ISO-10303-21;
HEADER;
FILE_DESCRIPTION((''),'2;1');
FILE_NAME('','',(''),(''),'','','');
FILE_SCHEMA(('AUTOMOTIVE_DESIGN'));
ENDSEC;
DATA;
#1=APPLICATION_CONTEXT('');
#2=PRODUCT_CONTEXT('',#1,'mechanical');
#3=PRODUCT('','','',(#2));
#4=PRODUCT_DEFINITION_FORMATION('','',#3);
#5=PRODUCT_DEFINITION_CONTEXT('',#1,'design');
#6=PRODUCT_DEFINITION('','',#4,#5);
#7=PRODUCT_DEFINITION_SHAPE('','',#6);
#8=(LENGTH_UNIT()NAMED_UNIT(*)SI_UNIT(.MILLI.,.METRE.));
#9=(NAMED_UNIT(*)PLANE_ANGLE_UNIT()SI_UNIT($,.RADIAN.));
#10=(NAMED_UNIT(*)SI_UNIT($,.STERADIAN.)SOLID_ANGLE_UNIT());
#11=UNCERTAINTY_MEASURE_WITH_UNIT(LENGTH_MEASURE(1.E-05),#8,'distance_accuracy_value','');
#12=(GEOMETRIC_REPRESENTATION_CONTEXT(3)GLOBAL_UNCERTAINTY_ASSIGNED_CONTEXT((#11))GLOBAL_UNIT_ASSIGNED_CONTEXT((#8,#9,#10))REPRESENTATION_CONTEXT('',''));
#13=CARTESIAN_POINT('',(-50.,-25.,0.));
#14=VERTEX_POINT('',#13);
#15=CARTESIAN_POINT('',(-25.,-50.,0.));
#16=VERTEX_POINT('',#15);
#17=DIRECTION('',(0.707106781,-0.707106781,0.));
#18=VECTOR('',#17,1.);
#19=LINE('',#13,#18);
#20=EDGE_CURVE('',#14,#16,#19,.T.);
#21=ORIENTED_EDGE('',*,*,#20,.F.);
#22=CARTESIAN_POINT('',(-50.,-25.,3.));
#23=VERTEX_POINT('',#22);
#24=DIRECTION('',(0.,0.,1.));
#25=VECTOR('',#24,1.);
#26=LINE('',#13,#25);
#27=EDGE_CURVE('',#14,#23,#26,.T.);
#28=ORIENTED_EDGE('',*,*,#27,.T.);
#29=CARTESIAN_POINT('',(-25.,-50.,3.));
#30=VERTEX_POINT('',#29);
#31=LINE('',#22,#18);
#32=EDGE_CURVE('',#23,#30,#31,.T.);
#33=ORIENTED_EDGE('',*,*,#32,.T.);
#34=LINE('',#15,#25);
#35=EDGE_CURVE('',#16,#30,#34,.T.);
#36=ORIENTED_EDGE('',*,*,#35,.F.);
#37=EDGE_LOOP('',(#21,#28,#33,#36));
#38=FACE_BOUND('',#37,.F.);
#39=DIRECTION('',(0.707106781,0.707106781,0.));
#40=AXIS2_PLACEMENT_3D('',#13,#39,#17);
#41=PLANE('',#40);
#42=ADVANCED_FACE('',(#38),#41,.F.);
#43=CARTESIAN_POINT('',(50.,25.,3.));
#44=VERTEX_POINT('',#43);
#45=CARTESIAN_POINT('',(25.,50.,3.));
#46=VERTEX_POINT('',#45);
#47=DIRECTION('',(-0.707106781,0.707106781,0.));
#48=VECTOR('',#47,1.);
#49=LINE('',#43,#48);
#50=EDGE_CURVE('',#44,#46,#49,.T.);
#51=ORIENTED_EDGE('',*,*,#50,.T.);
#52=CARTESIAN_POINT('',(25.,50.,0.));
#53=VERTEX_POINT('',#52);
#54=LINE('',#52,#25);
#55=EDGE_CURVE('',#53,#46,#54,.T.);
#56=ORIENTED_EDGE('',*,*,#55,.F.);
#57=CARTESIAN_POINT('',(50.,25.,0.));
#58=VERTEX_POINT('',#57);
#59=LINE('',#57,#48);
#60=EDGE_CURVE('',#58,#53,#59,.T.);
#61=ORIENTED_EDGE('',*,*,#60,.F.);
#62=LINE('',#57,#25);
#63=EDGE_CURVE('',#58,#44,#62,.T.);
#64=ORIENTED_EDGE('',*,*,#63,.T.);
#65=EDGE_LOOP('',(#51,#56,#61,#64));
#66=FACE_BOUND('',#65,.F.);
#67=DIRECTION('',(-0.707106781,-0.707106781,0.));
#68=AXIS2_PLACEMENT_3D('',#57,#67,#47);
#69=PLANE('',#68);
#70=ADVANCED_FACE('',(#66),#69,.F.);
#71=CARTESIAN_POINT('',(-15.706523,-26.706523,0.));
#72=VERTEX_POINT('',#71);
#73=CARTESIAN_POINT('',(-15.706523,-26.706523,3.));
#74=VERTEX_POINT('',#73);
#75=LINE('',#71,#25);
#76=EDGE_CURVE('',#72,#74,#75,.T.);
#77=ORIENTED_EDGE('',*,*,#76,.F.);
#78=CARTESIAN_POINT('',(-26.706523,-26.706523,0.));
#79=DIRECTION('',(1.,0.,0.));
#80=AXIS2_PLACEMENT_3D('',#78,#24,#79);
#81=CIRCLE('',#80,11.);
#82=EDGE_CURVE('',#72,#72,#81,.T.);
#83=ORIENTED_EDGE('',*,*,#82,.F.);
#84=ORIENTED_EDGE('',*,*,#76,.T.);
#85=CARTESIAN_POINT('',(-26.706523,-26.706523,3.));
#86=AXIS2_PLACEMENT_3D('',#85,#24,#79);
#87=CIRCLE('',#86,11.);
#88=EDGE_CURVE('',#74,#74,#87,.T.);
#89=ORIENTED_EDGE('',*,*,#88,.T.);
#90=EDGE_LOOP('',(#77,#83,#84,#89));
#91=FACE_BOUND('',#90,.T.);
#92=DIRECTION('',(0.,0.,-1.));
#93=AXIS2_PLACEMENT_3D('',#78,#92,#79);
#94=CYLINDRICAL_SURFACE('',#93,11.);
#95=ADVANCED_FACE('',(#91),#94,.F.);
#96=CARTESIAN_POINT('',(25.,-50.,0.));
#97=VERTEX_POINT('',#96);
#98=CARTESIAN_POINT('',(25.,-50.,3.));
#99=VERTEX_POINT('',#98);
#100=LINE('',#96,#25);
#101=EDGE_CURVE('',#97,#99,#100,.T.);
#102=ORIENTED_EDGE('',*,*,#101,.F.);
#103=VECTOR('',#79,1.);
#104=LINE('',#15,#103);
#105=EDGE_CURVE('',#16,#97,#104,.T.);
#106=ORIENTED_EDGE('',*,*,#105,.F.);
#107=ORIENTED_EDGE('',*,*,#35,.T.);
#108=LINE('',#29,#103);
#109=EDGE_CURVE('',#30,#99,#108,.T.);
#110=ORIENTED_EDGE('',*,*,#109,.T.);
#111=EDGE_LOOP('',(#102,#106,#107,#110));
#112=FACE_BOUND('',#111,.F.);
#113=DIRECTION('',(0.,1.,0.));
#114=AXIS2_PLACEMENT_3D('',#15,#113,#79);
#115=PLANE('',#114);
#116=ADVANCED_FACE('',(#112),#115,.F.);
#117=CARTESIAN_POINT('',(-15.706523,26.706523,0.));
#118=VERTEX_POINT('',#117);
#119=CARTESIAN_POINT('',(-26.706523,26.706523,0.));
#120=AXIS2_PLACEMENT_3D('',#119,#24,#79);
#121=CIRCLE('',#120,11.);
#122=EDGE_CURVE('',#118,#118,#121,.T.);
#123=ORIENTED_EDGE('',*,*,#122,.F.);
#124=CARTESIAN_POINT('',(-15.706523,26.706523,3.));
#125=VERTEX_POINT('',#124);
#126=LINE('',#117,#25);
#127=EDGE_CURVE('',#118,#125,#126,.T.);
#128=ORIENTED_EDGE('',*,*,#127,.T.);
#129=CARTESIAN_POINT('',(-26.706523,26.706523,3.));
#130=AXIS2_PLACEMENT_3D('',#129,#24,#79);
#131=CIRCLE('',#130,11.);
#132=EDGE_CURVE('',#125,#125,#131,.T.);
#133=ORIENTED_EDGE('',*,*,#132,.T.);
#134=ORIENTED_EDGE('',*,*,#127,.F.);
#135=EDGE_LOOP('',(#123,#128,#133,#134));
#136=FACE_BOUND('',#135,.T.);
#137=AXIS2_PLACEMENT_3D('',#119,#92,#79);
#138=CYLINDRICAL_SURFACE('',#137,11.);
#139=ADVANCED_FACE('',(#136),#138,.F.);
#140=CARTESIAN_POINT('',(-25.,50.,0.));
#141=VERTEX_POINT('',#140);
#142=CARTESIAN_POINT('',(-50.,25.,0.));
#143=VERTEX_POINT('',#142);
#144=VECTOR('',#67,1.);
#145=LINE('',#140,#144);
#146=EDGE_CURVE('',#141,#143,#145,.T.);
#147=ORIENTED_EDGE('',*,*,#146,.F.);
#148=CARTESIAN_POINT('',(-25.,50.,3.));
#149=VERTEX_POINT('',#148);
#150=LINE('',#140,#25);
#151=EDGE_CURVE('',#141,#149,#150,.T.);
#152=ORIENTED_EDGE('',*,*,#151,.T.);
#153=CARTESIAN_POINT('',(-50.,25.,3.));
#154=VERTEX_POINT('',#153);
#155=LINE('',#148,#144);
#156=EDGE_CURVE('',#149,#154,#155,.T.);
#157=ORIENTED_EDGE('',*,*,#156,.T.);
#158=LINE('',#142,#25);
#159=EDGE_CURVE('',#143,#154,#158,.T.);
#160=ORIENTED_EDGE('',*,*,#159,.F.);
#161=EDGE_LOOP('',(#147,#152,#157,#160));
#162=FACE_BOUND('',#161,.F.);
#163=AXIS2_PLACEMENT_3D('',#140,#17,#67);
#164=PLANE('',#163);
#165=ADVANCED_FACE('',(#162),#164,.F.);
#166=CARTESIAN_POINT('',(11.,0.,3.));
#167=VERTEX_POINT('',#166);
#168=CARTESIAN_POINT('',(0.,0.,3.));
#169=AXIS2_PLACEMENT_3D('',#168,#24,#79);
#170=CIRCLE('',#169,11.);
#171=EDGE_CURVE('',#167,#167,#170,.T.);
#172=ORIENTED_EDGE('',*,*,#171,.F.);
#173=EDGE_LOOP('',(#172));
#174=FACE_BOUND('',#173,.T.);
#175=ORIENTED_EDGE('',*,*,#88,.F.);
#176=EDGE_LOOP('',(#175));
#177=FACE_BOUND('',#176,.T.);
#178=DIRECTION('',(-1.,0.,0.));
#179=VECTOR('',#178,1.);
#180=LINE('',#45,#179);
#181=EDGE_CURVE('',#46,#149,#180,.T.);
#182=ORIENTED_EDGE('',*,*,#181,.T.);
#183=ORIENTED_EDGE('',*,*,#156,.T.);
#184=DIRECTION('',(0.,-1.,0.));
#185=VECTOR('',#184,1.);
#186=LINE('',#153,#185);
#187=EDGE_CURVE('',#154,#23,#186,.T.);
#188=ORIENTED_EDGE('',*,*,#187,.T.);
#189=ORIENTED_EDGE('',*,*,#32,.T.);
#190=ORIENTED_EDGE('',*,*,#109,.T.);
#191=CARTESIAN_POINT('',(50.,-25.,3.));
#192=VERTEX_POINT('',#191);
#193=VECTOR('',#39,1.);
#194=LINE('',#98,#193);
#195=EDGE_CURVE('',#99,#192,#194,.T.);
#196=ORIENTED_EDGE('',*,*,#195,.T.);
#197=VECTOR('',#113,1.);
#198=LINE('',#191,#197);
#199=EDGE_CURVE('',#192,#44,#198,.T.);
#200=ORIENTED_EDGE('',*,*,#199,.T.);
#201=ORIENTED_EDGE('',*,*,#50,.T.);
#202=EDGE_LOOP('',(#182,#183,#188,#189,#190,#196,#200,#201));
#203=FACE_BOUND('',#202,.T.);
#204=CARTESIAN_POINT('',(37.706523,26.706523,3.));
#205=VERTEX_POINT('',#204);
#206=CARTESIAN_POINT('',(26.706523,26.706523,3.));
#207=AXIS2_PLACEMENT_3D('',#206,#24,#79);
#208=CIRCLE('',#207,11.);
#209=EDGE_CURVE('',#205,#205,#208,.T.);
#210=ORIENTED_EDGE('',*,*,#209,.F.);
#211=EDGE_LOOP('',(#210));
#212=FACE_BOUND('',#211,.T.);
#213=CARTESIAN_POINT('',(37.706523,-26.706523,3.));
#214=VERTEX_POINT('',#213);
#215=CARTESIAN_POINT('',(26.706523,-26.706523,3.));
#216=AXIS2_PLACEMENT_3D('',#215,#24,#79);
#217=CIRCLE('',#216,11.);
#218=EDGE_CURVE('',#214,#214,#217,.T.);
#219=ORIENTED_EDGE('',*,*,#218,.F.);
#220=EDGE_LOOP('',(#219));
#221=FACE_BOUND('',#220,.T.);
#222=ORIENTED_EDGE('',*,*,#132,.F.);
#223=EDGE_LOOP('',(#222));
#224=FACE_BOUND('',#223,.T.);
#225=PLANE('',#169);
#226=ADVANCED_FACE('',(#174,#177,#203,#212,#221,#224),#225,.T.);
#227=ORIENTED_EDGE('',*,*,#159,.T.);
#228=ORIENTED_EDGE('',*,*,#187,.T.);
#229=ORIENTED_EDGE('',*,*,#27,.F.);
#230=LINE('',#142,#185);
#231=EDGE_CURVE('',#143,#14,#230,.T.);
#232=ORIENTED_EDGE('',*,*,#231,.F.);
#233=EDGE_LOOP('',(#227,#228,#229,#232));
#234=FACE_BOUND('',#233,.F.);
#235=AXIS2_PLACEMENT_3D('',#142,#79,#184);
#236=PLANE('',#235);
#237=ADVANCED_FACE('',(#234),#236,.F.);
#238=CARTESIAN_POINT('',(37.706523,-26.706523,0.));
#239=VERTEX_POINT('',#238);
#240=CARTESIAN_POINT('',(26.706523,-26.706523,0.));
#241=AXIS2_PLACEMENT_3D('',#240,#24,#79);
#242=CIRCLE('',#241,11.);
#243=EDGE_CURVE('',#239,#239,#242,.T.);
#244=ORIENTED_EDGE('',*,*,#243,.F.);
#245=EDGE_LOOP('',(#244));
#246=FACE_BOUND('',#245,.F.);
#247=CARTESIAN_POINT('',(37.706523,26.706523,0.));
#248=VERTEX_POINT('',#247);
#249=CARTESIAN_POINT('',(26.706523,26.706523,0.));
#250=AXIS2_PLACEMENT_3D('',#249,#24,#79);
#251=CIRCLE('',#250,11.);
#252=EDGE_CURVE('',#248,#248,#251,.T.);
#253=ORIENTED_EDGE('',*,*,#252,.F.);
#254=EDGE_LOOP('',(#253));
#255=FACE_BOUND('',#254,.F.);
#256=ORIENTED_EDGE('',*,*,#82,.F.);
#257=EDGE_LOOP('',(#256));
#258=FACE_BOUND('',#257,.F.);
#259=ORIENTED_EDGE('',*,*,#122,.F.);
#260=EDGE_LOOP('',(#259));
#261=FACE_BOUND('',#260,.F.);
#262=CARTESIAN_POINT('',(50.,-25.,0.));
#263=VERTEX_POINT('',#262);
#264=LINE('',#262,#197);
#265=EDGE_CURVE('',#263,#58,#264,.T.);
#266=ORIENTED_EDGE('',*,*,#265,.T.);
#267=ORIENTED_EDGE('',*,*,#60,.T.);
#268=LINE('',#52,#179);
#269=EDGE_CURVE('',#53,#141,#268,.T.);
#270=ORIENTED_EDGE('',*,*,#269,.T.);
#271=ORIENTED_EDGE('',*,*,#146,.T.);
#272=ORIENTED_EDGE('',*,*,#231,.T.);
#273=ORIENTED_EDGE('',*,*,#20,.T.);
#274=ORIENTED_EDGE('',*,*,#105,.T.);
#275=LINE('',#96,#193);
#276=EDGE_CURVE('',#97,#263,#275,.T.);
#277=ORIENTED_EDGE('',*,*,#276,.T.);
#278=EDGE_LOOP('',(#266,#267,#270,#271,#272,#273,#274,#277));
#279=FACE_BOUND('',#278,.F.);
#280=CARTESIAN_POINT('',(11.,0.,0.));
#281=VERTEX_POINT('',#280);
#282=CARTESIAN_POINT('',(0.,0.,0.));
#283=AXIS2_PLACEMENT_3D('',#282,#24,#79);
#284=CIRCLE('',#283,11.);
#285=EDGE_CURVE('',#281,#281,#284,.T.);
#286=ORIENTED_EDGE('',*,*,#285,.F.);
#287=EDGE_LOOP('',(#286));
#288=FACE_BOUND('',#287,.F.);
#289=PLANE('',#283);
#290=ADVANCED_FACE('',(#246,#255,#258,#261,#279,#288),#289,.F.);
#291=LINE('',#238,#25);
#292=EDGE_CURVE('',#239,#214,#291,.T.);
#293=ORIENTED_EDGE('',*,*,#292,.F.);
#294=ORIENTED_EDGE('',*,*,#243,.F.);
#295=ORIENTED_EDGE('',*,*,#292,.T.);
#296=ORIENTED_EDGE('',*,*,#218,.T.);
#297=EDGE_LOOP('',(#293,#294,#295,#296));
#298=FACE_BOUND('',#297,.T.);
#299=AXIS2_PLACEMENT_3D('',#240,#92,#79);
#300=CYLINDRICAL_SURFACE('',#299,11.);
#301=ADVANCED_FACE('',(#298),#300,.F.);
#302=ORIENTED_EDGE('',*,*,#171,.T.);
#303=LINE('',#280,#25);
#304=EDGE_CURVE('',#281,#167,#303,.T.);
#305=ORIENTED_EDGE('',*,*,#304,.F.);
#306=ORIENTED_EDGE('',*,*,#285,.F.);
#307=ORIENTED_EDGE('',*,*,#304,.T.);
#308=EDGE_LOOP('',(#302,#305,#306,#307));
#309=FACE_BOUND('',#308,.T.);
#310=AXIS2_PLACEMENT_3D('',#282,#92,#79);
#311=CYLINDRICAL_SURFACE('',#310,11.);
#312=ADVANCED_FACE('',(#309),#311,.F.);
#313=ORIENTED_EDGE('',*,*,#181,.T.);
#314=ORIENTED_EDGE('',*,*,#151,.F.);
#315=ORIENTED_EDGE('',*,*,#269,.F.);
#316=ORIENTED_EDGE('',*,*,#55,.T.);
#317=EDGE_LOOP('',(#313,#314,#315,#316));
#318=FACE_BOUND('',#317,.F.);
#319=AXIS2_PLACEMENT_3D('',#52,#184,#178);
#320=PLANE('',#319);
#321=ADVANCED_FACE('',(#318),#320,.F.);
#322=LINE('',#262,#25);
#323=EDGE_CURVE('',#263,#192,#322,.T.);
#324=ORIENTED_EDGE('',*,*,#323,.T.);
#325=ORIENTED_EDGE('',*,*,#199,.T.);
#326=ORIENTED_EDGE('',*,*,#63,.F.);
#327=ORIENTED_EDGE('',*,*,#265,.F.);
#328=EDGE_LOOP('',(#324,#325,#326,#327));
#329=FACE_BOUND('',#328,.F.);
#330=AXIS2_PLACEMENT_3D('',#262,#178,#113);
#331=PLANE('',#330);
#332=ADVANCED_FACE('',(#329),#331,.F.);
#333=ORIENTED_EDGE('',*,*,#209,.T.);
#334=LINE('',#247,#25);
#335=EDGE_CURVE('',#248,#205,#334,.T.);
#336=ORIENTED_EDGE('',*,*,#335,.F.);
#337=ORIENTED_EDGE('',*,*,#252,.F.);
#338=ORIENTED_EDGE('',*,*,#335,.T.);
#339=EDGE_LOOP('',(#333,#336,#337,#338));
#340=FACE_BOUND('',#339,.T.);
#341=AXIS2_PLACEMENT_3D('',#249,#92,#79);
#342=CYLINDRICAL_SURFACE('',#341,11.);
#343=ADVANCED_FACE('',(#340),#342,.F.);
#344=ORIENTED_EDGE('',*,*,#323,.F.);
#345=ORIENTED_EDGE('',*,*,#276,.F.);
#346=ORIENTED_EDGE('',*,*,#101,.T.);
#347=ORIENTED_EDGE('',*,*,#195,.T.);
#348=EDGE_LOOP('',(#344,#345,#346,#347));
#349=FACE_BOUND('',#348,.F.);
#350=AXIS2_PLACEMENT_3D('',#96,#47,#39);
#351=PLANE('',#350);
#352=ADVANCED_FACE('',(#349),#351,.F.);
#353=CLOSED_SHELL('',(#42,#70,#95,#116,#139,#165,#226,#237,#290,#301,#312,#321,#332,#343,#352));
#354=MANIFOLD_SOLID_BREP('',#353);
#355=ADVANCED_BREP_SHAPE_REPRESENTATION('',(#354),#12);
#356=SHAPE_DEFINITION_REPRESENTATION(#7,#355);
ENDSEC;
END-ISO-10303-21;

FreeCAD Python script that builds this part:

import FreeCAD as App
import Part
import Sketcher
Q = App.Units.Quantity


def add_polygon(sketch, points):
    """Adds a closed chain of lines whose ends are joined by coincident constraints."""
    first, n = sketch.GeometryCount, len(points)
    for a, b in zip(points, points[1:] + points[:1]):
        sketch.addGeometry(Part.LineSegment(App.Vector(*a, 0), App.Vector(*b, 0)), False)
    for i in range(n):
        sketch.addConstraint(Sketcher.Constraint("Coincident", first + i, 2, first + (i + 1) % n, 1))

doc = App.newDocument("Part")
params = doc.addObject("Spreadsheet::Sheet", "Params")
for row, (alias, value) in enumerate([
    ("sketch1_diameter", "22 mm"),
    ("sketch1_width", "50 mm"),
    ("pad1_length", "3 mm"),
], start=1):
    params.set(f"A{row}", alias)
    params.set(f"B{row}", "=" + value)
    params.setAlias(f"B{row}", alias)

body = doc.addObject("PartDesign::Body", "Body")

# Sketch on XY plane
sketch1 = doc.addObject("Sketcher::SketchObject", "Sketch")
body.addObject(sketch1)
sketch1.AttachmentSupport = (doc.XY_Plane, [""])
sketch1.MapMode = "FlatFace"
add_polygon(sketch1, [(25, 50), (-25, 50), (-50, 25), (-50, -25), (-25, -50), (25, -50), (50, -25), (50, 25)])  # lines 0-7
sketch1.addGeometry(Part.Circle(App.Vector(-26.706523, -26.706523, 0), App.Vector(0, 0, 1), 11), False)  # 8
sketch1.addGeometry(Part.Circle(App.Vector(26.706523, -26.706523, 0), App.Vector(0, 0, 1), 11), False)  # 9
sketch1.addGeometry(Part.Circle(App.Vector(-26.706523, 26.706523, 0), App.Vector(0, 0, 1), 11), False)  # 10
sketch1.addGeometry(Part.Circle(App.Vector(0, 0, 0), App.Vector(0, 0, 1), 11), False)  # 11
sketch1.addGeometry(Part.Circle(App.Vector(26.706523, 26.706523, 0), App.Vector(0, 0, 1), 11), False)  # 12
sketch1.addConstraint([
    Sketcher.Constraint("Horizontal", 0),
    Sketcher.Constraint("Vertical", 2),
    Sketcher.Constraint("Horizontal", 4),
    Sketcher.Constraint("Vertical", 6),
    Sketcher.Constraint("Coincident", 11, 3, -1, 1),
    Sketcher.Constraint("Equal", 8, 9),
    Sketcher.Constraint("Equal", 9, 10),
    Sketcher.Constraint("Equal", 10, 11),
    Sketcher.Constraint("Equal", 11, 12),
    Sketcher.Constraint("Symmetric", 9, 3, 10, 3, -1, 1),
    Sketcher.Constraint("Symmetric", 8, 3, 12, 3, -1, 1),
    Sketcher.Constraint("Symmetric", 0, 2, 4, 2, -1, 1),
    Sketcher.Constraint("Symmetric", 1, 2, 5, 2, -1, 1),
    Sketcher.Constraint("Symmetric", 8, 3, 9, 3, -2),
    Sketcher.Constraint("Perpendicular", 1, 3),
    Sketcher.Constraint("Perpendicular", 5, 7),
    Sketcher.Constraint("Horizontal", 2, 2, 5, 2),
    Sketcher.Constraint("Horizontal", 1, 2, 6, 2),
    Sketcher.Constraint("Vertical", 0, 2, 3, 2),
    Sketcher.Constraint("Equal", 4, 2),
    Sketcher.Constraint("Diameter", 8, Q("22 mm")),
    Sketcher.Constraint("DistanceX", 0, 2, 0, 1, Q("50 mm")),
    Sketcher.Constraint("DistanceY", -1, 1, 0, 2, Q("50 mm")),
    Sketcher.Constraint("DistanceX", 8, 3, -1, 1, Q("26.706523 mm")),
    Sketcher.Constraint("DistanceY", 8, 3, -1, 1, Q("26.706523 mm")),
])
sketch1.setExpression("Constraints[28]", "Params.sketch1_diameter")
sketch1.setExpression("Constraints[29]", "Params.sketch1_width")
pad1 = doc.addObject("PartDesign::Pad", "Pad")
body.addObject(pad1)
pad1.Profile = sketch1
pad1.setExpression("Length", "Params.pad1_length")

doc.recompute()
